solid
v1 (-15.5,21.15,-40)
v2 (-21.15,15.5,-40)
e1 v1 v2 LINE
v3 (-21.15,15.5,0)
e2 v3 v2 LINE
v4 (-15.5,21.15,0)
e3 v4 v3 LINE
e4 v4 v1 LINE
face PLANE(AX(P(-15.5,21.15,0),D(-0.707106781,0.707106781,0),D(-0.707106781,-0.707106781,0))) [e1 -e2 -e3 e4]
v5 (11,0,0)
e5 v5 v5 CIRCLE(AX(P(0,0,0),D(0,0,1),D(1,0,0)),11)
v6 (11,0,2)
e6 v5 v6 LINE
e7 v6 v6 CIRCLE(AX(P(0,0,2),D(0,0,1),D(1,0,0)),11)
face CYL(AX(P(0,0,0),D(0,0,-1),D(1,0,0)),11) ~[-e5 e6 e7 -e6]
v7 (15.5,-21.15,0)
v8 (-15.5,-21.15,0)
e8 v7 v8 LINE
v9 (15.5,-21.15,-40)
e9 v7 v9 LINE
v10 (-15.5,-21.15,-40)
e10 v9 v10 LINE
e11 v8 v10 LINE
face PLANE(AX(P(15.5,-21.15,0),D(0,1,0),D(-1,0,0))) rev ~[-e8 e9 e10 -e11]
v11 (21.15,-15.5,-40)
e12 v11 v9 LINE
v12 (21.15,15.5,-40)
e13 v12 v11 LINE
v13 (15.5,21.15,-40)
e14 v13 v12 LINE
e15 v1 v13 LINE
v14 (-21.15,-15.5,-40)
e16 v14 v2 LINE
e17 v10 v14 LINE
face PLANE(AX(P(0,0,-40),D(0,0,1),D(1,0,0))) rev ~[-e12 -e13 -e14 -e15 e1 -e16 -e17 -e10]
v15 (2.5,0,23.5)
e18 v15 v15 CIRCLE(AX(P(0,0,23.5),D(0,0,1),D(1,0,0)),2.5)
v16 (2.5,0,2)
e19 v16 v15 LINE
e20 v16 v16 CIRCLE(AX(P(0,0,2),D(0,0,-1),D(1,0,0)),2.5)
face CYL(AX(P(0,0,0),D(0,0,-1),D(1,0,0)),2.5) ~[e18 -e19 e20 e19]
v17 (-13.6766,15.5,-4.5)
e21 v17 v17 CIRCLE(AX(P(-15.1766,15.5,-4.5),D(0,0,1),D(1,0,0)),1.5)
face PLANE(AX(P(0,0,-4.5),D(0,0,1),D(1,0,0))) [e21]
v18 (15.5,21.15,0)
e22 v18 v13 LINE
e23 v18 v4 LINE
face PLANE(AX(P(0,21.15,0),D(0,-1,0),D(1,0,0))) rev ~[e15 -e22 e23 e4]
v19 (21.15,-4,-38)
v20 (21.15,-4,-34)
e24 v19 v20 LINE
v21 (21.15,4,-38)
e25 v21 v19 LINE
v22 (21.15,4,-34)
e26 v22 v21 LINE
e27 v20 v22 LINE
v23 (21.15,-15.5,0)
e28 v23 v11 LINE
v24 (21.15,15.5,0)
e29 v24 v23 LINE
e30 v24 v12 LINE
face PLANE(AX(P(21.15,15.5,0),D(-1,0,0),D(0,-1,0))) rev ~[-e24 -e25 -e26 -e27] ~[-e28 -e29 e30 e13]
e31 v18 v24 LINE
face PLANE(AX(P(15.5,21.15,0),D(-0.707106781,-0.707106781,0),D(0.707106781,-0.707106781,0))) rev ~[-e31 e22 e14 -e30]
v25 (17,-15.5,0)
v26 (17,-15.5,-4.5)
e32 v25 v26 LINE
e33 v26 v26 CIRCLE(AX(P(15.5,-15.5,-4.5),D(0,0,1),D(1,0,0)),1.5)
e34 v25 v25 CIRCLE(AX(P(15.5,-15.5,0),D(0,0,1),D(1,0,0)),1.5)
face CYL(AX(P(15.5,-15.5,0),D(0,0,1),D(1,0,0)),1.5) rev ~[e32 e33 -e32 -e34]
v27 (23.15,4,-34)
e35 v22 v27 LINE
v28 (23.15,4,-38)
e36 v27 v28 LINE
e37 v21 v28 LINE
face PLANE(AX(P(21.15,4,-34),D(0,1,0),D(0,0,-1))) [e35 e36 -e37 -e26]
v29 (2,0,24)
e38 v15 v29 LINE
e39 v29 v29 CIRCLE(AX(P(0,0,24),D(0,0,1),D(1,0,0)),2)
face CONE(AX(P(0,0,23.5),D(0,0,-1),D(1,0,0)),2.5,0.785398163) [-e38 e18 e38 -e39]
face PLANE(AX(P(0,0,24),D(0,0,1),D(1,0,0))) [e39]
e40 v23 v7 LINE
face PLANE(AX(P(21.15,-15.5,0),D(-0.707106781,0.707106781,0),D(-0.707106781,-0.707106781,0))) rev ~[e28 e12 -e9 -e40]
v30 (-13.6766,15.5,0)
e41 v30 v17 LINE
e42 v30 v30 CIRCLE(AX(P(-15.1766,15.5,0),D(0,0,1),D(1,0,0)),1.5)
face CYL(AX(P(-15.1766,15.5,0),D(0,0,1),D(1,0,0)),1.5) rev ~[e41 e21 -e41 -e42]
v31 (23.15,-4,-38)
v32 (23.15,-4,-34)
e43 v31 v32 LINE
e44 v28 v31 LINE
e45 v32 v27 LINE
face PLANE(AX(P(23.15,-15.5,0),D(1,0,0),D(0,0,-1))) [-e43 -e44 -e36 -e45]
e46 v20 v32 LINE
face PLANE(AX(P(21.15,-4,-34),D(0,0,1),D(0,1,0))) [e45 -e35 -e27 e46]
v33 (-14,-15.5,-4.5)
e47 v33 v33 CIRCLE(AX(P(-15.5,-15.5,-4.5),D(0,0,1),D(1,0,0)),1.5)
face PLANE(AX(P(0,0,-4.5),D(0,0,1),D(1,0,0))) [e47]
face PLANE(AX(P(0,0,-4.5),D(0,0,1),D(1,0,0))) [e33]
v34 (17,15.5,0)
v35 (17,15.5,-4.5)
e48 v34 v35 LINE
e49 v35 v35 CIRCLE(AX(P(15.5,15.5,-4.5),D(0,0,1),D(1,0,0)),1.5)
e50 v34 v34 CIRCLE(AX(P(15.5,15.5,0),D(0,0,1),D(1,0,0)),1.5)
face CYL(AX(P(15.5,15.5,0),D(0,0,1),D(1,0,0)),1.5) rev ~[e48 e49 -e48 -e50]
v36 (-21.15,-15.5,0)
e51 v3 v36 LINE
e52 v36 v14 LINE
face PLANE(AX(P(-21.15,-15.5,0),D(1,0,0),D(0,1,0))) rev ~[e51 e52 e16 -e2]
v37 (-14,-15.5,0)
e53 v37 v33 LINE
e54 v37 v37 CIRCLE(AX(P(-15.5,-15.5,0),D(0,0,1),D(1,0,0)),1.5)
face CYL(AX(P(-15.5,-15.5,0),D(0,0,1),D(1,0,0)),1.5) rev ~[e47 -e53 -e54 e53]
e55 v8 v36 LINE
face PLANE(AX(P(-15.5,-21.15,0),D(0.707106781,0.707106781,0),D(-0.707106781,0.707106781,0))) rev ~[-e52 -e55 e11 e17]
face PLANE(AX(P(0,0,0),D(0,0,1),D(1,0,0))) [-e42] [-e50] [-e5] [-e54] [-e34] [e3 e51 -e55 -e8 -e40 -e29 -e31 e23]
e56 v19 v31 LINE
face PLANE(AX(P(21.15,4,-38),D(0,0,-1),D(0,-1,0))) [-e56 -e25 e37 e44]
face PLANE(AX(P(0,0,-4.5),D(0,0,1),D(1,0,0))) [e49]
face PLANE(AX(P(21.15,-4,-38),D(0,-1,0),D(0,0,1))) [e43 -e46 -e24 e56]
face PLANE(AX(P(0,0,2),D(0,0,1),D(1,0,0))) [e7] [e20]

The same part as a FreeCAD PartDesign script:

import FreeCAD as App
import Part
import Sketcher
from FreeCAD import Vector
Q = App.Units.Quantity


def edges_at(feature, points):
    """Names of the edges that pass closest to the given points."""
    edges = feature.Shape.Edges
    near = lambda p: min(range(len(edges)), key=lambda i: edges[i].distToShape(Part.Vertex(*p))[0])
    return sorted({f"Edge{near(p) + 1}" for p in points})

doc = App.newDocument("Part")
body = doc.addObject("PartDesign::Body", "Body")

# Sketch on XY plane
sketch1 = body.newObject("Sketcher::SketchObject", "Sketch")
sketch1.AttachmentSupport = (doc.getObject("XY_Plane"), [""])
sketch1.MapMode = "FlatFace"
sketch1.addGeometry([
    Part.LineSegment(Vector(-16, -21, 0), Vector(16, -21, 0)),  # 0
    Part.LineSegment(Vector(16, -21, 0), Vector(21, -16, 0)),  # 1
    Part.LineSegment(Vector(21, -16, 0), Vector(21, 16, 0)),  # 2
    Part.LineSegment(Vector(21, 16, 0), Vector(16, 21, 0)),  # 3
    Part.LineSegment(Vector(16, 21, 0), Vector(-16, 21, 0)),  # 4
    Part.LineSegment(Vector(-16, 21, 0), Vector(-21, 16, 0)),  # 5
    Part.LineSegment(Vector(-21, 16, 0), Vector(-21, -16, 0)),  # 6
    Part.LineSegment(Vector(-21, -16, 0), Vector(-16, -21, 0)),  # 7
], False)
sketch1.addConstraint([
    Sketcher.Constraint("Coincident", 0, 2, 1, 1),
    Sketcher.Constraint("Coincident", 1, 2, 2, 1),
    Sketcher.Constraint("Coincident", 2, 2, 3, 1),
    Sketcher.Constraint("Coincident", 3, 2, 4, 1),
    Sketcher.Constraint("Coincident", 4, 2, 5, 1),
    Sketcher.Constraint("Coincident", 5, 2, 6, 1),
    Sketcher.Constraint("Coincident", 6, 2, 7, 1),
    Sketcher.Constraint("Coincident", 7, 2, 0, 1),
    Sketcher.Constraint("Horizontal", 0),
    Sketcher.Constraint("Vertical", 2),
    Sketcher.Constraint("Horizontal", 4),
    Sketcher.Constraint("Vertical", 6),
    Sketcher.Constraint("Symmetric", 0, 2, 4, 2, -1, 1),
    Sketcher.Constraint("Symmetric", 1, 2, 5, 2, -1, 1),
    Sketcher.Constraint("Perpendicular", 1, 3),
    Sketcher.Constraint("Perpendicular", 5, 7),
    Sketcher.Constraint("Horizontal", 2, 2, 5, 2),
    Sketcher.Constraint("Horizontal", 1, 2, 6, 2),
    Sketcher.Constraint("Vertical", 0, 2, 3, 2),
    Sketcher.Constraint("Equal", 4, 2),
    Sketcher.Constraint("DistanceX", -1, 1, 0, 2, Q("15.5 mm")),
    Sketcher.Constraint("DistanceY", 0, 2, 3, 2, Q("42.3 mm")),
])
pad1 = body.newObject("PartDesign::Pad", "Pad")
pad1.Profile = sketch1
pad1.Length = 40
pad1.Reversed = True

# Sketch on XY plane
sketch2 = body.newObject("Sketcher::SketchObject", "Sketch001")
sketch2.AttachmentSupport = (doc.getObject("XY_Plane"), [""])
sketch2.MapMode = "FlatFace"
sketch2.addGeometry(Part.Circle(Vector(0, 0, 0), Vector(0, 0, 1), 11), False)
sketch2.addConstraint([
    Sketcher.Constraint("Coincident", 0, 3, -1, 1),
    Sketcher.Constraint("Diameter", 0, Q("22 mm")),
])
pad2 = body.newObject("PartDesign::Pad", "Pad001")
pad2.Profile = sketch2
pad2.Length = 2

# Sketch on XY plane
sketch3 = body.newObject("Sketcher::SketchObject", "Sketch002")
sketch3.AttachmentSupport = (doc.getObject("XY_Plane"), [""])
sketch3.MapMode = "FlatFace"
sketch3.addGeometry(Part.Circle(Vector(0, 0, 0), Vector(0, 0, 1), 2.5), False)
sketch3.addConstraint([
    Sketcher.Constraint("Coincident", 0, 3, -1, 1),
    Sketcher.Constraint("Diameter", 0, Q("5 mm")),
])
pad3 = body.newObject("PartDesign::Pad", "Pad002")
pad3.Profile = sketch3
pad3.Length = 24
doc.recompute()

chamfer = body.newObject("PartDesign::Chamfer", "Chamfer")
chamfer.Base = (pad3, edges_at(pad3, [(-2.5, 0, 24)]))
chamfer.Size = 0.5

# Sketch on XY plane
sketch4 = body.newObject("Sketcher::SketchObject", "Sketch003")
sketch4.AttachmentSupport = (doc.getObject("XY_Plane"), [""])
sketch4.MapMode = "FlatFace"
sketch4.addGeometry([
    Part.Circle(Vector(-15.2, 15.5, 0), Vector(0, 0, 1), 1.5),
    Part.Circle(Vector(15.5, 15.5, 0), Vector(0, 0, 1), 1.5),
    Part.Circle(Vector(-15.5, -15.5, 0), Vector(0, 0, 1), 1.5),
    Part.Circle(Vector(15.5, -15.5, 0), Vector(0, 0, 1), 1.5),
], False)
sketch4.addConstraint([
    Sketcher.Constraint("Equal", 0, 1),
    Sketcher.Constraint("Equal", 1, 2),
    Sketcher.Constraint("Equal", 2, 3),
    Sketcher.Constraint("Symmetric", 1, 3, 2, 3, -1, 1),
    Sketcher.Constraint("Symmetric", 2, 3, 3, 3, -2),
    Sketcher.Constraint("Horizontal", 0, 3, 1, 3),
    Sketcher.Constraint("Diameter", 0, Q("3 mm")),
    Sketcher.Constraint("DistanceY", 2, 3, 0, 3, Q("31 mm")),
    Sketcher.Constraint("DistanceX", 2, 3, 1, 3, Q("31 mm")),
    Sketcher.Constraint("DistanceX", 0, 3, -1, 1, Q("15.1766 mm")),
])
pocket1 = body.newObject("PartDesign::Pocket", "Pocket")
pocket1.Profile = sketch4
pocket1.Length = 4.5

# Sketch on YZ plane
sketch5 = body.newObject("Sketcher::SketchObject", "Sketch004")
sketch5.AttachmentSupport = (doc.getObject("YZ_Plane"), [""])
sketch5.MapMode = "FlatFace"
sketch5.AttachmentOffset = App.Placement(Vector(0, 0, 21.15), App.Rotation())
sketch5.addGeometry([
    Part.LineSegment(Vector(-4, -34, 0), Vector(-4, -38, 0)),
    Part.LineSegment(Vector(-4, -38, 0), Vector(4, -38, 0)),
    Part.LineSegment(Vector(4, -38, 0), Vector(4, -34, 0)),
    Part.LineSegment(Vector(4, -34, 0), Vector(-4, -34, 0)),
], False)
sketch5.addConstraint([
    Sketcher.Constraint("Coincident", 0, 2, 1, 1),
    Sketcher.Constraint("Coincident", 1, 2, 2, 1),
    Sketcher.Constraint("Coincident", 2, 2, 3, 1),
    Sketcher.Constraint("Coincident", 3, 2, 0, 1),
    Sketcher.Constraint("Vertical", 0),
    Sketcher.Constraint("Horizontal", 1),
    Sketcher.Constraint("Vertical", 2),
    Sketcher.Constraint("Horizontal", 3),
    Sketcher.Constraint("DistanceX", 1, 1, 1, 2, Q("8 mm")),
    Sketcher.Constraint("DistanceY", 0, 2, 0, 1, Q("4 mm")),
    Sketcher.Constraint("DistanceX", 0, 2, -1, 1, Q("4 mm")),
    Sketcher.Constraint("DistanceY", 0, 2, -1, 1, Q("38 mm")),
])
pad4 = body.newObject("PartDesign::Pad", "Pad003")
pad4.Profile = sketch5
pad4.Length = 2

doc.recompute()
